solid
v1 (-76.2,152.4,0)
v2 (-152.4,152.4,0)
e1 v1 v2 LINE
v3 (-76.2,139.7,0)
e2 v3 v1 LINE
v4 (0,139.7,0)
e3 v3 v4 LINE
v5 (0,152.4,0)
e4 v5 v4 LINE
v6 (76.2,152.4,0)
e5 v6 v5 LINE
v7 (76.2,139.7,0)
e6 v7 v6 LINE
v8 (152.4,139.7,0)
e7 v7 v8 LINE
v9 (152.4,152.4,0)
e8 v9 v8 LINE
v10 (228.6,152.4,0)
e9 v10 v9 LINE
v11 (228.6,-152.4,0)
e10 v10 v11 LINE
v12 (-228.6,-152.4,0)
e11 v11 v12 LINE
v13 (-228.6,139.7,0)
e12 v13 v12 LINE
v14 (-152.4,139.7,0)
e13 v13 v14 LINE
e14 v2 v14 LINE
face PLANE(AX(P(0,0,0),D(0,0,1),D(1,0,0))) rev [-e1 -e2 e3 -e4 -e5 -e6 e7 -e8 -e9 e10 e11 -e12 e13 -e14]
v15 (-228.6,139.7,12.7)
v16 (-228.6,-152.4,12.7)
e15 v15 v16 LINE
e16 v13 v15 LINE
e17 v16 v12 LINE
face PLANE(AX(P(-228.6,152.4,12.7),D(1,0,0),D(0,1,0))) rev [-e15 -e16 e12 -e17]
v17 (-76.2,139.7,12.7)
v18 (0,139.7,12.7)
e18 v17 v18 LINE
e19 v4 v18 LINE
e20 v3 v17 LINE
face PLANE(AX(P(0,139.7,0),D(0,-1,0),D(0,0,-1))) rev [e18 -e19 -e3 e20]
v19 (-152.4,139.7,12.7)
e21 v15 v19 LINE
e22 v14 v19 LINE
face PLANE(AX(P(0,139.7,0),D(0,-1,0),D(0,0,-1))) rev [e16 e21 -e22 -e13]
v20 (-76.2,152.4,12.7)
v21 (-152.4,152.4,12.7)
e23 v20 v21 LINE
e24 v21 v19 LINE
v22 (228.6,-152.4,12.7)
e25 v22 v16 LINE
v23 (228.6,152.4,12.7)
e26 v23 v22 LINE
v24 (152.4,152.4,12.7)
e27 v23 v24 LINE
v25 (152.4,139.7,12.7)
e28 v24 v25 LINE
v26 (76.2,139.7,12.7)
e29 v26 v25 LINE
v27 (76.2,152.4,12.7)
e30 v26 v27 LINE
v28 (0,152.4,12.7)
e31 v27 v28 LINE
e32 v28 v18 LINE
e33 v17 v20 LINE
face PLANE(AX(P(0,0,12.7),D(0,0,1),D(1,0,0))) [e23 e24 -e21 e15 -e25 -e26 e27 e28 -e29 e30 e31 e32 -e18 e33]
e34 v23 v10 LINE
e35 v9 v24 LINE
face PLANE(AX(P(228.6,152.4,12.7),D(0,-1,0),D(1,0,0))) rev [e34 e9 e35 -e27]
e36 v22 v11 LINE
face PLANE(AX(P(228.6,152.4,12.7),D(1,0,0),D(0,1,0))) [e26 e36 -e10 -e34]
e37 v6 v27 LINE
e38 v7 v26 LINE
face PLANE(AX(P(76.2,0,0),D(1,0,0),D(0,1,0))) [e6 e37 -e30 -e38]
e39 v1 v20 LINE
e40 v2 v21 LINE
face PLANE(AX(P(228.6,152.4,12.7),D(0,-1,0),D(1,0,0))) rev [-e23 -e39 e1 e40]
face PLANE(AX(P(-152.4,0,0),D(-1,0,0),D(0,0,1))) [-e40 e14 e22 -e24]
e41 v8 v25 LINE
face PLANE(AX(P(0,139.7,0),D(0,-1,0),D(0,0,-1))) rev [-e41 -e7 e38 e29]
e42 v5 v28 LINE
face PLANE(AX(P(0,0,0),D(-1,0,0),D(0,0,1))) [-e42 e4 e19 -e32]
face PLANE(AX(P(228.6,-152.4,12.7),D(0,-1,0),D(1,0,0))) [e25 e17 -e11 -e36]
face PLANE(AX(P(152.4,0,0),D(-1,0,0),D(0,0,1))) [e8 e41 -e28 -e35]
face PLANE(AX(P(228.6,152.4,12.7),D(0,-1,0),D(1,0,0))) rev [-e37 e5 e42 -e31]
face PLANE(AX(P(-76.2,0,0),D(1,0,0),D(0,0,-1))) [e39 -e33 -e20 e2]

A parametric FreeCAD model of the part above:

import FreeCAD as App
import Part
import Sketcher

V = App.Vector
Q = App.Units.Quantity


def add_polygon(sketch, points):
    """Adds a closed chain of lines whose ends are joined by coincident constraints."""
    first, n = sketch.GeometryCount, len(points)
    for a, b in zip(points, points[1:] + points[:1]):
        sketch.addGeometry(Part.LineSegment(App.Vector(*a, 0), App.Vector(*b, 0)), False)
    for i in range(n):
        sketch.addConstraint(Sketcher.Constraint("Coincident", first + i, 2, first + (i + 1) % n, 1))

doc = App.newDocument("Part")
body = doc.addObject("PartDesign::Body", "Body")

sketch1 = doc.addObject("Sketcher::SketchObject", "Sketch")
body.addObject(sketch1)
sketch1.AttachmentSupport = (doc.XY_Plane, [""])
sketch1.MapMode = "FlatFace"
add_polygon(sketch1, [(-228.6, 152.4), (-228.6, -152.4), (228.6, -152.4), (228.6, 152.4)])
sketch1.addConstraint(Sketcher.Constraint("Vertical", 0))
sketch1.addConstraint(Sketcher.Constraint("Horizontal", 1))
sketch1.addConstraint(Sketcher.Constraint("Vertical", 2))
sketch1.addConstraint(Sketcher.Constraint("Horizontal", 3))
sketch1.addConstraint(Sketcher.Constraint("Symmetric", 0, 2, 2, 2, -1, 1))
sketch1.addConstraint(Sketcher.Constraint("DistanceX", 1, 1, 1, 2, Q("18 in")))
sketch1.addConstraint(Sketcher.Constraint("DistanceY", 0, 2, 0, 1, Q("12 in")))
pad1 = doc.addObject("PartDesign::Pad", "Pad")
body.addObject(pad1)
pad1.Profile = sketch1
pad1.Length = Q("0.5 in")

sketch2 = doc.addObject("Sketcher::SketchObject", "Sketch001")
body.addObject(sketch2)
sketch2.AttachmentSupport = (doc.XY_Plane, [""])
sketch2.MapMode = "FlatFace"
sketch2.AttachmentOffset = App.Placement(V(0, 0, 0.5 * 25.4), App.Rotation())
add_polygon(sketch2, [(-228.6, 152.4), (-228.6, 139.7), (-152.4, 139.7), (-152.4, 152.4)])
add_polygon(sketch2, [(-76.2, 152.4), (-76.2, 139.7), (0, 139.7), (0, 152.4)])
add_polygon(sketch2, [(76.2, 152.4), (76.2, 139.7), (152.4, 139.7), (152.4, 152.4)])
sketch2.addConstraint(Sketcher.Constraint("Vertical", 0))
sketch2.addConstraint(Sketcher.Constraint("Horizontal", 1))
sketch2.addConstraint(Sketcher.Constraint("Vertical", 2))
sketch2.addConstraint(Sketcher.Constraint("Horizontal", 3))
sketch2.addConstraint(Sketcher.Constraint("Vertical", 4))
sketch2.addConstraint(Sketcher.Constraint("Horizontal", 5))
sketch2.addConstraint(Sketcher.Constraint("Vertical", 6))
sketch2.addConstraint(Sketcher.Constraint("Horizontal", 7))
sketch2.addConstraint(Sketcher.Constraint("Vertical", 8))
sketch2.addConstraint(Sketcher.Constraint("Horizontal", 9))
sketch2.addConstraint(Sketcher.Constraint("Vertical", 10))
sketch2.addConstraint(Sketcher.Constraint("Horizontal", 11))
sketch2.addConstraint(Sketcher.Constraint("Symmetric", 4, 2, 8, 2, -2))
sketch2.addConstraint(Sketcher.Constraint("Symmetric", 1, 2, 9, 2, -2))
sketch2.addConstraint(Sketcher.Constraint("PointOnObject", 5, 2, -2))
sketch2.addConstraint(Sketcher.Constraint("Horizontal", 3, 2, 6, 2))
sketch2.addConstraint(Sketcher.Constraint("Horizontal", 7, 2, 10, 2))
sketch2.addConstraint(Sketcher.Constraint("Equal", 3, 5))
sketch2.addConstraint(Sketcher.Constraint("Equal", 7, 9))
sketch2.addConstraint(Sketcher.Constraint("DistanceX", 1, 1, 1, 2, Q("3 in")))
sketch2.addConstraint(Sketcher.Constraint("DistanceY", 0, 2, 0, 1, Q("0.5 in")))
sketch2.addConstraint(Sketcher.Constraint("DistanceY", -1, 1, 2, 2, Q("6 in")))
pocket1 = doc.addObject("PartDesign::Pocket", "Pocket")
body.addObject(pocket1)
pocket1.Profile = sketch2
pocket1.Type = "ThroughAll"

doc.recompute()
